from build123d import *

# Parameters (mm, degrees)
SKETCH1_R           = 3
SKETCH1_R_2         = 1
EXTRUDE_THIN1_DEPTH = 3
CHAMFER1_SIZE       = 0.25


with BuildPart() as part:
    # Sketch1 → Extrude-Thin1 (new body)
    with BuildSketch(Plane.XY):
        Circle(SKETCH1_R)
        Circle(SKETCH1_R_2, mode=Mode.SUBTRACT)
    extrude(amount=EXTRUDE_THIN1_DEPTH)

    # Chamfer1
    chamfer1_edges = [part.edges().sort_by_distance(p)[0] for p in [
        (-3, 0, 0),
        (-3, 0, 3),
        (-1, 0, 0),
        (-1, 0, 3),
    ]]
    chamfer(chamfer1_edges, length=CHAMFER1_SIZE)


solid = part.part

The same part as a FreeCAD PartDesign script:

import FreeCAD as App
import Part
import Sketcher
from FreeCAD import Vector
Q = App.Units.Quantity


def edges_at(feature, points):
    """Names of the edges that pass closest to the given points."""
    edges = feature.Shape.Edges
    near = lambda p: min(range(len(edges)), key=lambda i: edges[i].distToShape(Part.Vertex(*p))[0])
    return sorted({f"Edge{near(p) + 1}" for p in points})

doc = App.newDocument("Part")
body = doc.addObject("PartDesign::Body", "Body")

# Sketch on XY plane
sketch1 = body.newObject("Sketcher::SketchObject", "Sketch")
sketch1.AttachmentSupport = (doc.getObject("XY_Plane"), [""])
sketch1.MapMode = "FlatFace"
sketch1.addGeometry([
    Part.Circle(Vector(0, 0, 0), Vector(0, 0, 1), 3),
    Part.Circle(Vector(0, 0, 0), Vector(0, 0, 1), 1),
], False)
sketch1.addConstraint([
    Sketcher.Constraint("Coincident", 0, 3, -1, 1),
    Sketcher.Constraint("Coincident", 1, 3, -1, 1),
    Sketcher.Constraint("Diameter", 0, Q("6 mm")),
    Sketcher.Constraint("Diameter", 1, Q("2 mm")),
])
pad1 = body.newObject("PartDesign::Pad", "Pad")
pad1.Profile = sketch1
pad1.Length = 3
doc.recompute()

chamfer = body.newObject("PartDesign::Chamfer", "Chamfer")
chamfer.Base = (pad1, edges_at(pad1, [
    (-3, 0, 0),
    (-3, 0, 3),
    (-1, 0, 0),
    (-1, 0, 3),
]))
chamfer.Size = 0.25

doc.recompute()
